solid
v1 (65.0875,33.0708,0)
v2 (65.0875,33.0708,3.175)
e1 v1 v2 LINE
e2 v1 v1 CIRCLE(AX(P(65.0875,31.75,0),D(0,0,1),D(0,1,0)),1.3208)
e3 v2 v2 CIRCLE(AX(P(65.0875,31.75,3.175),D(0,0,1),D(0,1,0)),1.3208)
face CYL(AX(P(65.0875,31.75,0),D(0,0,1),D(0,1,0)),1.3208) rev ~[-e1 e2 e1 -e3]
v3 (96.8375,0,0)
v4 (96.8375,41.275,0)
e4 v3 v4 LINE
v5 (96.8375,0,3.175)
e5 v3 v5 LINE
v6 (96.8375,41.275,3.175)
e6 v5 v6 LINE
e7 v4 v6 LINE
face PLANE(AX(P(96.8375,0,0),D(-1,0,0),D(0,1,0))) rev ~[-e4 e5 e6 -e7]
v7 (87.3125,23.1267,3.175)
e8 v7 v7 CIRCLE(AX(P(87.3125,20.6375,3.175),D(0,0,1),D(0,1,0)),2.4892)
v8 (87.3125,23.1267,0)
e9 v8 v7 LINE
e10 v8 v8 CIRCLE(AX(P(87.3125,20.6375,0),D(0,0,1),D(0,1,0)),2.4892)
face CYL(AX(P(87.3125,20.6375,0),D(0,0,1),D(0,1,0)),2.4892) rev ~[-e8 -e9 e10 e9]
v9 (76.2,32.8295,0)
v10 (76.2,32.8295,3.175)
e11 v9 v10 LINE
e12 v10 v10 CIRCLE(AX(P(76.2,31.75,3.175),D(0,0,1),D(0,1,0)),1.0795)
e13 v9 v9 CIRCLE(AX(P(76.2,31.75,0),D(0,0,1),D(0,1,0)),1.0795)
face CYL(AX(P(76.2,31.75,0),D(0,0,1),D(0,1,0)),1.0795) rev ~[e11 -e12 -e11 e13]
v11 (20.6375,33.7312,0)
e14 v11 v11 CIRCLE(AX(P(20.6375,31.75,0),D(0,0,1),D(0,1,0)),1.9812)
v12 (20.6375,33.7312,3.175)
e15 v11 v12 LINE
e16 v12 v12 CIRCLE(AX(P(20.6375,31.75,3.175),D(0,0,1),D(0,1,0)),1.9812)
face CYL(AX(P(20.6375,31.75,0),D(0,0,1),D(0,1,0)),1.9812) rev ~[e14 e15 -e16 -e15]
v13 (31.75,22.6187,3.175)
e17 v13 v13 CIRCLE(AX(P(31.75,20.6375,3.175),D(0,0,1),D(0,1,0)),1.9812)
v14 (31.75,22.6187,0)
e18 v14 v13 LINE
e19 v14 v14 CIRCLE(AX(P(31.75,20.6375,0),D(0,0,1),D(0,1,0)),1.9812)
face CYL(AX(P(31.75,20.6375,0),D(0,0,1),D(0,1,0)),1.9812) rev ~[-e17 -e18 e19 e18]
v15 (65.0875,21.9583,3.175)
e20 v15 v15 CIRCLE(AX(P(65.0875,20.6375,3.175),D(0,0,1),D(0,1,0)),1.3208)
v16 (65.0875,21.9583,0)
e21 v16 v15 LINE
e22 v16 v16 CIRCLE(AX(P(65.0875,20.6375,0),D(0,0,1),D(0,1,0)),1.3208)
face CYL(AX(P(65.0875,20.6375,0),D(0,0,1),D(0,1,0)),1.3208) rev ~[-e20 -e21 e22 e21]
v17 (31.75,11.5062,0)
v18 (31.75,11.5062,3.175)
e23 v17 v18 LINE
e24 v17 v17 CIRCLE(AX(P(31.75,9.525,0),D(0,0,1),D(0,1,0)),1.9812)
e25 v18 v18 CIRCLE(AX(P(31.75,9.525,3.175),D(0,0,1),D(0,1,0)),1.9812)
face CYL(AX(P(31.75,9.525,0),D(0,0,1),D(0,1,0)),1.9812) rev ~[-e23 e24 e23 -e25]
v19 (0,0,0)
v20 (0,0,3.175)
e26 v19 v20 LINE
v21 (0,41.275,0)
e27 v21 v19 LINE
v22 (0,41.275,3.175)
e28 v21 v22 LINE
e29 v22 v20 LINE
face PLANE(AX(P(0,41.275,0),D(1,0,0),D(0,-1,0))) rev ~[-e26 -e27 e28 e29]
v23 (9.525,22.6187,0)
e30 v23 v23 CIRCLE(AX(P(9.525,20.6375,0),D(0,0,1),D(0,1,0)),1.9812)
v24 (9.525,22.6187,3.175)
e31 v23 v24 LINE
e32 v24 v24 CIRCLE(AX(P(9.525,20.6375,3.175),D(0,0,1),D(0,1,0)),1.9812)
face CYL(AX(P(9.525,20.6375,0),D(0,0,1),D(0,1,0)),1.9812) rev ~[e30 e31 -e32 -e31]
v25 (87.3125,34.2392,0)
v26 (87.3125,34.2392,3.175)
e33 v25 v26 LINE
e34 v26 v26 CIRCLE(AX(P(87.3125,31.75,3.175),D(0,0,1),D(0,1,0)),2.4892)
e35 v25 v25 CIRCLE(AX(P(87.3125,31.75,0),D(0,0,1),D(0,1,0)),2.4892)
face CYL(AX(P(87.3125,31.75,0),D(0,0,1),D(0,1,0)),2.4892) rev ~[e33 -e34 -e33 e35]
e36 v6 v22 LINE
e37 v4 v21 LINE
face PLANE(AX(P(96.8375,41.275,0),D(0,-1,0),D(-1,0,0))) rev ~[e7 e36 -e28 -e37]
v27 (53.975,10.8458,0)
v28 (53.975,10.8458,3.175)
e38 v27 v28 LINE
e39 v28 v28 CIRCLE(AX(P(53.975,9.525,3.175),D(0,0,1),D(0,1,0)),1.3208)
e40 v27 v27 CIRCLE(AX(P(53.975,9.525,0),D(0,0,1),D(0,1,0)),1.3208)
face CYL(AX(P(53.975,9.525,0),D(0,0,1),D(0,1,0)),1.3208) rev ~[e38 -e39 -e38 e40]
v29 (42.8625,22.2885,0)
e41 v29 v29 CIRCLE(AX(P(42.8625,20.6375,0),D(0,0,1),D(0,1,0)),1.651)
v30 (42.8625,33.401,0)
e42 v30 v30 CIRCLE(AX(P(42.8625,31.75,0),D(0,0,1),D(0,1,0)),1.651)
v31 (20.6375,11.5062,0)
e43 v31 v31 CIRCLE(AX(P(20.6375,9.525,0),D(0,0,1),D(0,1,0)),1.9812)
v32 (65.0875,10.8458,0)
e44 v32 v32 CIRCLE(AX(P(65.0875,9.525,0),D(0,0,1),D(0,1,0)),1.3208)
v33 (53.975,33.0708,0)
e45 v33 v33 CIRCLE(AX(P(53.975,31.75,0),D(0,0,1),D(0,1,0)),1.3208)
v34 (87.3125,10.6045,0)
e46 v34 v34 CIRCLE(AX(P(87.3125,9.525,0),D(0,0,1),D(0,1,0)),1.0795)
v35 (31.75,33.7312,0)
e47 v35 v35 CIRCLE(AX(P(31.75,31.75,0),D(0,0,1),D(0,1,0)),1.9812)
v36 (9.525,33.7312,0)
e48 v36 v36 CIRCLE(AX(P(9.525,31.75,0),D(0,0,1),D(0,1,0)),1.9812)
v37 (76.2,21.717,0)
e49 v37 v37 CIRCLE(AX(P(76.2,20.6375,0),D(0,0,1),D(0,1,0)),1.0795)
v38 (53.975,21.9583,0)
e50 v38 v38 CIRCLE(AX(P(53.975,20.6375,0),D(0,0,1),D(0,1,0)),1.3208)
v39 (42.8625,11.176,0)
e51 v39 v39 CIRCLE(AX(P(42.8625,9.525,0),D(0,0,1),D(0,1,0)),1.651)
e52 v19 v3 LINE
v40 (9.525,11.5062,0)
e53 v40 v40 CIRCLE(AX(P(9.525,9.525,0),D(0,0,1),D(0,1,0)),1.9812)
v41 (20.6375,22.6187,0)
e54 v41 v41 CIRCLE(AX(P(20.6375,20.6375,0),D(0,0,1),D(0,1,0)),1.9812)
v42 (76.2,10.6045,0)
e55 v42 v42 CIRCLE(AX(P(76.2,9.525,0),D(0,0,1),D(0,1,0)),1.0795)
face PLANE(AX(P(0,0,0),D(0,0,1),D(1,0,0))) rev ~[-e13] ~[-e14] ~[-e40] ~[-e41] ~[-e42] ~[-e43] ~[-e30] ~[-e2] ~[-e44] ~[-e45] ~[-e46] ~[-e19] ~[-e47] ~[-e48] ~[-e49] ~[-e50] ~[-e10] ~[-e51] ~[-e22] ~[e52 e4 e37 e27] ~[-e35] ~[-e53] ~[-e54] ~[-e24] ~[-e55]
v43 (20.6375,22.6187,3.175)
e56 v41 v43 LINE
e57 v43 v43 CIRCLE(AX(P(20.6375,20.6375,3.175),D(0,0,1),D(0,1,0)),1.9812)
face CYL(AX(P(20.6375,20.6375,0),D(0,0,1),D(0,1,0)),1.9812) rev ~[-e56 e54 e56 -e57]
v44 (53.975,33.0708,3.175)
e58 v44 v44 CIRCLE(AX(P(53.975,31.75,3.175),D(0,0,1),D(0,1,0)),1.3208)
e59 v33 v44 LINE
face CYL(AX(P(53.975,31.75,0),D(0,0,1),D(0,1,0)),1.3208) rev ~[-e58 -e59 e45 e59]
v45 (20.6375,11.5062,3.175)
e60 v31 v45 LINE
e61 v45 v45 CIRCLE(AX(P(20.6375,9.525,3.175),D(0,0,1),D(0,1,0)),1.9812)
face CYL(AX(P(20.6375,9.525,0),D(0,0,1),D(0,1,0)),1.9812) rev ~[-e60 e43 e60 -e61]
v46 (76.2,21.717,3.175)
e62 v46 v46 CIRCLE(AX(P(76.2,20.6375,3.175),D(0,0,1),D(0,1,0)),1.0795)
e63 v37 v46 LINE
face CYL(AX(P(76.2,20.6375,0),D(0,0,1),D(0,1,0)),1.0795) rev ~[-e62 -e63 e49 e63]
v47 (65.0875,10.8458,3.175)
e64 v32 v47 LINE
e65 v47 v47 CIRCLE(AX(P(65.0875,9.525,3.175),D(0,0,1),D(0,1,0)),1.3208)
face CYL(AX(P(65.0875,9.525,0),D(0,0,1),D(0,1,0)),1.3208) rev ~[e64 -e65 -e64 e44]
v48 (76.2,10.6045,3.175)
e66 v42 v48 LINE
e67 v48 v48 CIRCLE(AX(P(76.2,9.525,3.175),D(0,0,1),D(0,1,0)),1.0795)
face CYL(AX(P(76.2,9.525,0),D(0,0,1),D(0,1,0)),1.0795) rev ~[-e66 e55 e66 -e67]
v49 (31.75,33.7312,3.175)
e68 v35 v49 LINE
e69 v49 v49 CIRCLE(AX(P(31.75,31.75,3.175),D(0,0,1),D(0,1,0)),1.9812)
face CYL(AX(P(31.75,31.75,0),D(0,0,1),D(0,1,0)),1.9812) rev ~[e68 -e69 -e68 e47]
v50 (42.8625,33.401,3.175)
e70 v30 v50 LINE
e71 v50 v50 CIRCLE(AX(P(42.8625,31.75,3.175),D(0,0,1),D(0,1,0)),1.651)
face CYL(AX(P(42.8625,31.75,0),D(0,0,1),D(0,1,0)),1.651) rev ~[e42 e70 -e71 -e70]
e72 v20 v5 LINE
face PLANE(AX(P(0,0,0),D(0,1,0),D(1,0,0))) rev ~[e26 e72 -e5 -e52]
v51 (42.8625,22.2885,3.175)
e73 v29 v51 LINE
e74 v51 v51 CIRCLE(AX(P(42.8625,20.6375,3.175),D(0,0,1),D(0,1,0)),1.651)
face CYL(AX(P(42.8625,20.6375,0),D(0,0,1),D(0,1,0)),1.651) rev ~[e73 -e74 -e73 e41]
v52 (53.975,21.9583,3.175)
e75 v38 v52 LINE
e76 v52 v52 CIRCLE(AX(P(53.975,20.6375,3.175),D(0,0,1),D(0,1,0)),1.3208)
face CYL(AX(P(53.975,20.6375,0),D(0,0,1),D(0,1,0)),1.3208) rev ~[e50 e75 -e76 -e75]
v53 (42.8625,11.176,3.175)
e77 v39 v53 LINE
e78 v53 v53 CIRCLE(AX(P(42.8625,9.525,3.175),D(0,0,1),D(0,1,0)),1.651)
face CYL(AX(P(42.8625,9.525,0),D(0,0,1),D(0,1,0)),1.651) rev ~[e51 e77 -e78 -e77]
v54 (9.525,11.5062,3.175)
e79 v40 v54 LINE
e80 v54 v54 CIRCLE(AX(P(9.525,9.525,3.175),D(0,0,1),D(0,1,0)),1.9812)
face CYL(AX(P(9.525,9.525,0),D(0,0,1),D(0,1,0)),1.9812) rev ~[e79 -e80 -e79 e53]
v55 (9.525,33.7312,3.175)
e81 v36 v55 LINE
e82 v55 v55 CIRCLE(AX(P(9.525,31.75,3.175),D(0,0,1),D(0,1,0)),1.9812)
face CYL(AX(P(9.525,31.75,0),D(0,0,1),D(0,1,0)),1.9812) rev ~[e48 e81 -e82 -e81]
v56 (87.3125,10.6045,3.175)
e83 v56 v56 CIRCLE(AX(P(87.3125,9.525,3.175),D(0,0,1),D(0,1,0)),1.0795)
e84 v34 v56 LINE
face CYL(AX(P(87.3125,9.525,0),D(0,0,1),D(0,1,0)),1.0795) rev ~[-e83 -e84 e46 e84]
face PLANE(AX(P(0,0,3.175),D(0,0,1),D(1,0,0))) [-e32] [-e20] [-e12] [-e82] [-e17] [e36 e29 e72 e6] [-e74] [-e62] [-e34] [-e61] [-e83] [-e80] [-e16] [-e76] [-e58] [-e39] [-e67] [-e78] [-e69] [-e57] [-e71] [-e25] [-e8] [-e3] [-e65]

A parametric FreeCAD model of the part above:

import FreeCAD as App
import Part
import Sketcher
from FreeCAD import Vector
Q = App.Units.Quantity


def add_polygon(sketch, points):
    """Adds a closed chain of lines whose ends are joined by coincident constraints."""
    first, n = sketch.GeometryCount, len(points)
    for a, b in zip(points, points[1:] + points[:1]):
        sketch.addGeometry(Part.LineSegment(App.Vector(*a, 0), App.Vector(*b, 0)), False)
    for i in range(n):
        sketch.addConstraint(Sketcher.Constraint("Coincident", first + i, 2, first + (i + 1) % n, 1))

doc = App.newDocument("Part")
body = doc.addObject("PartDesign::Body", "Body")

# Sketch on XY plane
sketch1 = doc.addObject("Sketcher::SketchObject", "Sketch")
body.addObject(sketch1)
sketch1.AttachmentSupport = (doc.XY_Plane, [""])
sketch1.MapMode = "FlatFace"
add_polygon(sketch1, [(0, 41), (0, 0), (97, 0), (97, 41)])  # lines 0-3
sketch1.addConstraint([
    Sketcher.Constraint("Vertical", 0),
    Sketcher.Constraint("Horizontal", 1),
    Sketcher.Constraint("Vertical", 2),
    Sketcher.Constraint("Horizontal", 3),
    Sketcher.Constraint("Coincident", 0, 2, -1, 1),
    Sketcher.Constraint("DistanceX", 1, 1, 1, 2, Q("3.8125 in")),
    Sketcher.Constraint("DistanceY", 0, 2, 0, 1, Q("1.625 in")),
])
pad1 = doc.addObject("PartDesign::Pad", "Pad")
body.addObject(pad1)
pad1.Profile = sketch1
pad1.Length = Q("0.125 in")

# Sketch on XY plane
sketch2 = doc.addObject("Sketcher::SketchObject", "Sketch001")
body.addObject(sketch2)
sketch2.AttachmentSupport = (doc.XY_Plane, [""])
sketch2.MapMode = "FlatFace"
sketch2.addGeometry([
    Part.Circle(Vector(9.5, 9.5, 0), Vector(0, 0, 1), 2),  # 0
    Part.Circle(Vector(9.5, 20.6, 0), Vector(0, 0, 1), 2),  # 1
    Part.Circle(Vector(9.5, 31.8, 0), Vector(0, 0, 1), 2),  # 2
    Part.Circle(Vector(20.6, 9.5, 0), Vector(0, 0, 1), 2),  # 3
    Part.Circle(Vector(20.6, 20.6, 0), Vector(0, 0, 1), 2),  # 4
    Part.Circle(Vector(20.6, 31.8, 0), Vector(0, 0, 1), 2),  # 5
    Part.Circle(Vector(31.8, 9.5, 0), Vector(0, 0, 1), 2),  # 6
    Part.Circle(Vector(31.8, 20.6, 0), Vector(0, 0, 1), 2),  # 7
    Part.Circle(Vector(31.8, 31.8, 0), Vector(0, 0, 1), 2),  # 8
], False)
sketch2.addConstraint([
    Sketcher.Constraint("Equal", 0, 1),
    Sketcher.Constraint("Equal", 1, 2),
    Sketcher.Constraint("Equal", 2, 3),
    Sketcher.Constraint("Equal", 3, 4),
    Sketcher.Constraint("Equal", 4, 5),
    Sketcher.Constraint("Equal", 5, 6),
    Sketcher.Constraint("Equal", 6, 7),
    Sketcher.Constraint("Equal", 7, 8),
    Sketcher.Constraint("Horizontal", 0, 3, 3, 3),
    Sketcher.Constraint("Horizontal", 1, 3, 4, 3),
    Sketcher.Constraint("Horizontal", 2, 3, 5, 3),
    Sketcher.Constraint("Horizontal", 3, 3, 6, 3),
    Sketcher.Constraint("Horizontal", 4, 3, 7, 3),
    Sketcher.Constraint("Horizontal", 5, 3, 8, 3),
    Sketcher.Constraint("Vertical", 0, 3, 1, 3),
    Sketcher.Constraint("Vertical", 1, 3, 2, 3),
    Sketcher.Constraint("Vertical", 3, 3, 4, 3),
    Sketcher.Constraint("Vertical", 4, 3, 5, 3),
    Sketcher.Constraint("Vertical", 6, 3, 7, 3),
    Sketcher.Constraint("Vertical", 7, 3, 8, 3),
    Sketcher.Constraint("Diameter", 0, Q("0.156 in")),
    Sketcher.Constraint("DistanceY", -1, 1, 2, 3, Q("1.25 in")),
    Sketcher.Constraint("DistanceX", -1, 1, 6, 3, Q("1.25 in")),
    Sketcher.Constraint("DistanceX", -1, 1, 0, 3, Q("0.375 in")),
    Sketcher.Constraint("DistanceY", -1, 1, 0, 3, Q("0.375 in")),
    Sketcher.Constraint("DistanceY", -1, 1, 1, 3, Q("0.8125 in")),
    Sketcher.Constraint("DistanceX", -1, 1, 3, 3, Q("0.8125 in")),
])
doc.recompute()
hole = doc.addObject("PartDesign::Hole", "Hole")
body.addObject(hole)
hole.Profile = sketch2
hole.ThreadType = "None"
hole.Diameter = Q("0.156 in")
hole.DepthType = "ThroughAll"
hole.Reversed = True

# Sketch on XY plane
sketch3 = doc.addObject("Sketcher::SketchObject", "Sketch002")
body.addObject(sketch3)
sketch3.AttachmentSupport = (doc.XY_Plane, [""])
sketch3.MapMode = "FlatFace"
sketch3.addGeometry([
    Part.Circle(Vector(42.9, 31.8, 0), Vector(0, 0, 1), 1.7),
    Part.Circle(Vector(42.9, 20.6, 0), Vector(0, 0, 1), 1.7),
    Part.Circle(Vector(42.9, 9.5, 0), Vector(0, 0, 1), 1.7),
], False)
sketch3.addConstraint([
    Sketcher.Constraint("Equal", 0, 1),
    Sketcher.Constraint("Equal", 1, 2),
    Sketcher.Constraint("Vertical", 0, 3, 1, 3),
    Sketcher.Constraint("Vertical", 1, 3, 2, 3),
    Sketcher.Constraint("Diameter", 0, Q("0.13 in")),
    Sketcher.Constraint("DistanceY", -1, 1, 0, 3, Q("1.25 in")),
    Sketcher.Constraint("DistanceX", -1, 1, 0, 3, Q("1.6875 in")),
    Sketcher.Constraint("DistanceY", -1, 1, 1, 3, Q("0.8125 in")),
    Sketcher.Constraint("DistanceY", -1, 1, 2, 3, Q("0.375 in")),
])
doc.recompute()
hole2 = doc.addObject("PartDesign::Hole", "Hole001")
body.addObject(hole2)
hole2.Profile = sketch3
hole2.ThreadType = "None"
hole2.Diameter = Q("0.13 in")
hole2.DepthType = "ThroughAll"
hole2.Reversed = True

# Sketch on XY plane
sketch4 = doc.addObject("Sketcher::SketchObject", "Sketch003")
body.addObject(sketch4)
sketch4.AttachmentSupport = (doc.XY_Plane, [""])
sketch4.MapMode = "FlatFace"
sketch4.addGeometry([
    Part.Circle(Vector(54, 9.5, 0), Vector(0, 0, 1), 1.3),  # 0
    Part.Circle(Vector(54, 20.6, 0), Vector(0, 0, 1), 1.3),  # 1
    Part.Circle(Vector(54, 31.8, 0), Vector(0, 0, 1), 1.3),  # 2
    Part.Circle(Vector(65.1, 9.5, 0), Vector(0, 0, 1), 1.3),  # 3
    Part.Circle(Vector(65.1, 20.6, 0), Vector(0, 0, 1), 1.3),  # 4
    Part.Circle(Vector(65.1, 31.8, 0), Vector(0, 0, 1), 1.3),  # 5
], False)
sketch4.addConstraint([
    Sketcher.Constraint("Equal", 0, 1),
    Sketcher.Constraint("Equal", 1, 2),
    Sketcher.Constraint("Equal", 2, 3),
    Sketcher.Constraint("Equal", 3, 4),
    Sketcher.Constraint("Equal", 4, 5),
    Sketcher.Constraint("Horizontal", 0, 3, 3, 3),
    Sketcher.Constraint("Horizontal", 1, 3, 4, 3),
    Sketcher.Constraint("Horizontal", 2, 3, 5, 3),
    Sketcher.Constraint("Vertical", 0, 3, 1, 3),
    Sketcher.Constraint("Vertical", 1, 3, 2, 3),
    Sketcher.Constraint("Vertical", 3, 3, 4, 3),
    Sketcher.Constraint("Vertical", 4, 3, 5, 3),
    Sketcher.Constraint("Diameter", 0, Q("0.104 in")),
    Sketcher.Constraint("DistanceY", -1, 1, 2, 3, Q("1.25 in")),
    Sketcher.Constraint("DistanceX", -1, 1, 0, 3, Q("2.125 in")),
    Sketcher.Constraint("DistanceY", -1, 1, 0, 3, Q("0.375 in")),
    Sketcher.Constraint("DistanceY", -1, 1, 1, 3, Q("0.8125 in")),
    Sketcher.Constraint("DistanceX", -1, 1, 3, 3, Q("2.5625 in")),
])
doc.recompute()
hole3 = doc.addObject("PartDesign::Hole", "Hole002")
body.addObject(hole3)
hole3.Profile = sketch4
hole3.ThreadType = "None"
hole3.Diameter = Q("0.104 in")
hole3.DepthType = "ThroughAll"
hole3.Reversed = True

# Sketch on XY plane
sketch5 = doc.addObject("Sketcher::SketchObject", "Sketch004")
body.addObject(sketch5)
sketch5.AttachmentSupport = (doc.XY_Plane, [""])
sketch5.MapMode = "FlatFace"
sketch5.addGeometry([
    Part.Circle(Vector(76.2, 9.5, 0), Vector(0, 0, 1), 1.1),
    Part.Circle(Vector(76.2, 20.6, 0), Vector(0, 0, 1), 1.1),
    Part.Circle(Vector(76.2, 31.8, 0), Vector(0, 0, 1), 1.1),
    Part.Circle(Vector(87.3, 9.5, 0), Vector(0, 0, 1), 1.1),
], False)
sketch5.addConstraint([
    Sketcher.Constraint("Equal", 0, 1),
    Sketcher.Constraint("Equal", 1, 2),
    Sketcher.Constraint("Equal", 2, 3),
    Sketcher.Constraint("Horizontal", 0, 3, 3, 3),
    Sketcher.Constraint("Vertical", 0, 3, 1, 3),
    Sketcher.Constraint("Vertical", 1, 3, 2, 3),
    Sketcher.Constraint("Diameter", 0, Q("0.085 in")),
    Sketcher.Constraint("DistanceX", -1, 1, 0, 3, Q("3 in")),
    Sketcher.Constraint("DistanceY", -1, 1, 2, 3, Q("1.25 in")),
    Sketcher.Constraint("DistanceY", -1, 1, 0, 3, Q("0.375 in")),
    Sketcher.Constraint("DistanceY", -1, 1, 1, 3, Q("0.8125 in")),
    Sketcher.Constraint("DistanceX", -1, 1, 3, 3, Q("3.4375 in")),
])
doc.recompute()
hole4 = doc.addObject("PartDesign::Hole", "Hole003")
body.addObject(hole4)
hole4.Profile = sketch5
hole4.ThreadType = "None"
hole4.Diameter = Q("0.085 in")
hole4.DepthType = "ThroughAll"
hole4.Reversed = True

# Sketch on XY plane
sketch6 = doc.addObject("Sketcher::SketchObject", "Sketch005")
body.addObject(sketch6)
sketch6.AttachmentSupport = (doc.XY_Plane, [""])
sketch6.MapMode = "FlatFace"
sketch6.addGeometry([
    Part.Circle(Vector(87.3, 20.6, 0), Vector(0, 0, 1), 2.5),
    Part.Circle(Vector(87.3, 31.8, 0), Vector(0, 0, 1), 2.5),
], False)
sketch6.addConstraint([
    Sketcher.Constraint("Equal", 0, 1),
    Sketcher.Constraint("Vertical", 0, 3, 1, 3),
    Sketcher.Constraint("Diameter", 0, Q("0.196 in")),
    Sketcher.Constraint("DistanceY", -1, 1, 1, 3, Q("1.25 in")),
    Sketcher.Constraint("DistanceX", -1, 1, 0, 3, Q("3.4375 in")),
    Sketcher.Constraint("DistanceY", -1, 1, 0, 3, Q("0.8125 in")),
])
doc.recompute()
hole5 = doc.addObject("PartDesign::Hole", "Hole004")
body.addObject(hole5)
hole5.Profile = sketch6
hole5.ThreadType = "None"
hole5.Diameter = Q("0.196 in")
hole5.DepthType = "ThroughAll"
hole5.Reversed = True

doc.recompute()
